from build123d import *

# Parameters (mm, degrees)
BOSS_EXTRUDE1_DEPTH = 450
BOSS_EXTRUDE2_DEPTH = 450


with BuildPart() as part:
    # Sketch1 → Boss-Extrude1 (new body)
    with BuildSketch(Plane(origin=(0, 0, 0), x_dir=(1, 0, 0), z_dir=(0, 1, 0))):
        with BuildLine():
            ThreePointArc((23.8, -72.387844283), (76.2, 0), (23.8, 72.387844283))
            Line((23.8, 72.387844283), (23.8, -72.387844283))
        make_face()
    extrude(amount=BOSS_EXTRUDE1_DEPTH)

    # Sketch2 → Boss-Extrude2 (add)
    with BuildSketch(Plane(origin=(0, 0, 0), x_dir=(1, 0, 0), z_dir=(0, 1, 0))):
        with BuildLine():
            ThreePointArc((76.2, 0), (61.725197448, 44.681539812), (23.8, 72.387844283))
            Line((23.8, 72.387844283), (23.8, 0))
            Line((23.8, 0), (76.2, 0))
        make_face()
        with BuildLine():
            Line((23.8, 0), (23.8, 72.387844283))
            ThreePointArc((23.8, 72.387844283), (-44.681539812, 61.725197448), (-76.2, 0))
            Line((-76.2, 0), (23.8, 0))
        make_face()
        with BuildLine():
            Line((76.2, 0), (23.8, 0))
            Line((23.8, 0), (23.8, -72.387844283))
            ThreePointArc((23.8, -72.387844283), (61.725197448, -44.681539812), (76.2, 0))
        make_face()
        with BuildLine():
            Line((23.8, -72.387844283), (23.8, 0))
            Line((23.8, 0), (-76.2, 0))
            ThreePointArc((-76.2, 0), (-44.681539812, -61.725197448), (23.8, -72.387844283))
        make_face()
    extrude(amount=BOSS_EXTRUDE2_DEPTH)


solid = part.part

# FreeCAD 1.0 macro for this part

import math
import FreeCAD as App
import Part
import Sketcher
Q = App.Units.Quantity

doc = App.newDocument("Part")
body = doc.addObject("PartDesign::Body", "Body")

sketch1 = body.newObject("Sketcher::SketchObject", "Sketch")
sketch1.AttachmentSupport = (doc.getObject("XZ_Plane"), [""])
sketch1.MapMode = "FlatFace"
sketch1.addGeometry([
    Part.ArcOfCircle(Part.Circle(App.Vector(0, 0, 0), App.Vector(0, 0, 1), 76), math.radians(-72), math.radians(72)),
    Part.LineSegment(App.Vector(24, -72, 0), App.Vector(24, 72, 0)),
], False)
sketch1.addConstraint([
    Sketcher.Constraint("Coincident", 0, 1, 1, 1),
    Sketcher.Constraint("Coincident", 1, 2, 0, 2),
    Sketcher.Constraint("Vertical", 1),
    Sketcher.Constraint("Coincident", 0, 3, -1, 1),
    Sketcher.Constraint("Radius", 0, Q("76.2 mm")),
    Sketcher.Constraint("DistanceX", -1, 1, 0, 1, Q("23.8 mm")),
])
pad1 = body.newObject("PartDesign::Pad", "Pad")
pad1.Profile = sketch1
pad1.Length = 450
pad1.Reversed = True

sketch2 = body.newObject("Sketcher::SketchObject", "Sketch001")
sketch2.AttachmentSupport = (doc.getObject("XZ_Plane"), [""])
sketch2.MapMode = "FlatFace"
sketch2.addGeometry([
    Part.ArcOfCircle(Part.Circle(App.Vector(0, 0, 0), App.Vector(0, 0, 1), 76), math.radians(180), math.radians(288)),
    Part.ArcOfCircle(Part.Circle(App.Vector(0, 0, 0), App.Vector(0, 0, 1), 76), math.radians(72), math.radians(180)),
    Part.ArcOfCircle(Part.Circle(App.Vector(0, 0, 0), App.Vector(0, 0, 1), 76), math.radians(0), math.radians(72)),
    Part.ArcOfCircle(Part.Circle(App.Vector(0, 0, 0), App.Vector(0, 0, 1), 76), math.radians(-72), math.radians(0)),
], False)
sketch2.addConstraint([
    Sketcher.Constraint("Tangent", 0, 1, 1, 2),
    Sketcher.Constraint("Tangent", 1, 1, 2, 2),
    Sketcher.Constraint("Tangent", 2, 1, 3, 2),
    Sketcher.Constraint("Tangent", 3, 1, 0, 2),
    Sketcher.Constraint("Coincident", 0, 3, -1, 1),
    Sketcher.Constraint("Equal", 0, 1),
    Sketcher.Constraint("PointOnObject", 0, 1, -1),
    Sketcher.Constraint("PointOnObject", 2, 1, -1),
    Sketcher.Constraint("Vertical", 1, 1, 3, 1),
    Sketcher.Constraint("Radius", 0, Q("76.2 mm")),
    Sketcher.Constraint("DistanceX", 0, 1, 1, 1, Q("100 mm")),
])
pad2 = body.newObject("PartDesign::Pad", "Pad001")
pad2.Profile = sketch2
pad2.Length = 450
pad2.Reversed = True

doc.recompute()
